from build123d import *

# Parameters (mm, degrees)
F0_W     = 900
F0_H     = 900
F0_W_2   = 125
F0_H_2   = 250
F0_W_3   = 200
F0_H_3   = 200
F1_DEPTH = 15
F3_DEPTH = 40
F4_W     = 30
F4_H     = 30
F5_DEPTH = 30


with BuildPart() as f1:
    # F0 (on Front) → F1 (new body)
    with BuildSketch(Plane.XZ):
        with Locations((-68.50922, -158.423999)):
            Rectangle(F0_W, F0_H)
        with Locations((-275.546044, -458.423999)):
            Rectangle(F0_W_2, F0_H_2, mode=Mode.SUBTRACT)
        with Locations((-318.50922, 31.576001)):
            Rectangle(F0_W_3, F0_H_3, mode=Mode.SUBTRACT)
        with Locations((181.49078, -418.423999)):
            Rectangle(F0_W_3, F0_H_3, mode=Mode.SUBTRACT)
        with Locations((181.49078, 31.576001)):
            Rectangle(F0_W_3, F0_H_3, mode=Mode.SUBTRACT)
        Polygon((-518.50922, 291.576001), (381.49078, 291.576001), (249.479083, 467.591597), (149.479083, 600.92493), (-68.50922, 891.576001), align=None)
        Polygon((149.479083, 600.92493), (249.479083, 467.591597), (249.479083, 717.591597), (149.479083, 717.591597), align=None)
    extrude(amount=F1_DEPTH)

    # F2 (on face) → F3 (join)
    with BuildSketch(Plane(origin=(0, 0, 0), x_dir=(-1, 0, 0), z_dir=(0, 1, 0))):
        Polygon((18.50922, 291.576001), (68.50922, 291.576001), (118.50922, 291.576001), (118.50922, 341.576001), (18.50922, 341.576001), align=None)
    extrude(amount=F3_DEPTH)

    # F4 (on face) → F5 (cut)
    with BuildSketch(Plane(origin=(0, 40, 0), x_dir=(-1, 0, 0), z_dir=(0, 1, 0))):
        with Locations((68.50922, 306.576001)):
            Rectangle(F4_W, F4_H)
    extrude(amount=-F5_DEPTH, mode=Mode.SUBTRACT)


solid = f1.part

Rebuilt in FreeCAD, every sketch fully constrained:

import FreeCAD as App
import Part
import Sketcher
Q = App.Units.Quantity

doc = App.newDocument("Part")
body = doc.addObject("PartDesign::Body", "Body")

# Sketch on XZ plane
sketch1 = doc.addObject("Sketcher::SketchObject", "Sketch")
body.addObject(sketch1)
sketch1.AttachmentSupport = (doc.XZ_Plane, [""])
sketch1.MapMode = "FlatFace"
sketch1.addGeometry(Part.LineSegment(App.Vector(-518.50922, 291.576001, 0), App.Vector(-518.50922, -608.423999, 0)), False)
sketch1.addGeometry(Part.LineSegment(App.Vector(-518.50922, -608.423999, 0), App.Vector(381.49078, -608.423999, 0)), False)
sketch1.addGeometry(Part.LineSegment(App.Vector(381.49078, -608.423999, 0), App.Vector(381.49078, 291.576001, 0)), False)
sketch1.addGeometry(Part.LineSegment(App.Vector(381.49078, 291.576001, 0), App.Vector(249.479083, 467.591597, 0)), False)
sketch1.addGeometry(Part.LineSegment(App.Vector(249.479083, 467.591597, 0), App.Vector(249.479083, 717.591597, 0)), False)
sketch1.addGeometry(Part.LineSegment(App.Vector(249.479083, 717.591597, 0), App.Vector(149.479083, 717.591597, 0)), False)
sketch1.addGeometry(Part.LineSegment(App.Vector(149.479083, 717.591597, 0), App.Vector(149.479083, 600.92493, 0)), False)
sketch1.addGeometry(Part.LineSegment(App.Vector(149.479083, 600.92493, 0), App.Vector(-68.50922, 891.576001, 0)), False)
sketch1.addGeometry(Part.LineSegment(App.Vector(-68.50922, 891.576001, 0), App.Vector(-518.50922, 291.576001, 0)), False)
sketch1.addGeometry(Part.LineSegment(App.Vector(-213.046044, -583.423999, 0), App.Vector(-338.046044, -583.423999, 0)), False)
sketch1.addGeometry(Part.LineSegment(App.Vector(-338.046044, -583.423999, 0), App.Vector(-338.046044, -333.423999, 0)), False)
sketch1.addGeometry(Part.LineSegment(App.Vector(-338.046044, -333.423999, 0), App.Vector(-213.046044, -333.423999, 0)), False)
sketch1.addGeometry(Part.LineSegment(App.Vector(-213.046044, -333.423999, 0), App.Vector(-213.046044, -583.423999, 0)), False)
sketch1.addGeometry(Part.LineSegment(App.Vector(281.49078, -518.423999, 0), App.Vector(81.49078, -518.423999, 0)), False)
sketch1.addGeometry(Part.LineSegment(App.Vector(81.49078, -518.423999, 0), App.Vector(81.49078, -318.423999, 0)), False)
sketch1.addGeometry(Part.LineSegment(App.Vector(81.49078, -318.423999, 0), App.Vector(281.49078, -318.423999, 0)), False)
sketch1.addGeometry(Part.LineSegment(App.Vector(281.49078, -318.423999, 0), App.Vector(281.49078, -518.423999, 0)), False)
sketch1.addGeometry(Part.LineSegment(App.Vector(-218.50922, -68.423999, 0), App.Vector(-418.50922, -68.423999, 0)), False)
sketch1.addGeometry(Part.LineSegment(App.Vector(-418.50922, -68.423999, 0), App.Vector(-418.50922, 131.576001, 0)), False)
sketch1.addGeometry(Part.LineSegment(App.Vector(-418.50922, 131.576001, 0), App.Vector(-218.50922, 131.576001, 0)), False)
sketch1.addGeometry(Part.LineSegment(App.Vector(-218.50922, 131.576001, 0), App.Vector(-218.50922, -68.423999, 0)), False)
sketch1.addGeometry(Part.LineSegment(App.Vector(281.49078, -68.423999, 0), App.Vector(81.49078, -68.423999, 0)), False)
sketch1.addGeometry(Part.LineSegment(App.Vector(81.49078, -68.423999, 0), App.Vector(81.49078, 131.576001, 0)), False)
sketch1.addGeometry(Part.LineSegment(App.Vector(81.49078, 131.576001, 0), App.Vector(281.49078, 131.576001, 0)), False)
sketch1.addGeometry(Part.LineSegment(App.Vector(281.49078, 131.576001, 0), App.Vector(281.49078, -68.423999, 0)), False)
sketch1.addConstraint(Sketcher.Constraint("Coincident", 0, 2, 1, 1))
sketch1.addConstraint(Sketcher.Constraint("Coincident", 1, 2, 2, 1))
sketch1.addConstraint(Sketcher.Constraint("Coincident", 2, 2, 3, 1))
sketch1.addConstraint(Sketcher.Constraint("Coincident", 3, 2, 4, 1))
sketch1.addConstraint(Sketcher.Constraint("Coincident", 4, 2, 5, 1))
sketch1.addConstraint(Sketcher.Constraint("Coincident", 5, 2, 6, 1))
sketch1.addConstraint(Sketcher.Constraint("Coincident", 6, 2, 7, 1))
sketch1.addConstraint(Sketcher.Constraint("Coincident", 7, 2, 8, 1))
sketch1.addConstraint(Sketcher.Constraint("Coincident", 8, 2, 0, 1))
sketch1.addConstraint(Sketcher.Constraint("Coincident", 9, 2, 10, 1))
sketch1.addConstraint(Sketcher.Constraint("Coincident", 10, 2, 11, 1))
sketch1.addConstraint(Sketcher.Constraint("Coincident", 11, 2, 12, 1))
sketch1.addConstraint(Sketcher.Constraint("Coincident", 12, 2, 9, 1))
sketch1.addConstraint(Sketcher.Constraint("Coincident", 13, 2, 14, 1))
sketch1.addConstraint(Sketcher.Constraint("Coincident", 14, 2, 15, 1))
sketch1.addConstraint(Sketcher.Constraint("Coincident", 15, 2, 16, 1))
sketch1.addConstraint(Sketcher.Constraint("Coincident", 16, 2, 13, 1))
sketch1.addConstraint(Sketcher.Constraint("Coincident", 17, 2, 18, 1))
sketch1.addConstraint(Sketcher.Constraint("Coincident", 18, 2, 19, 1))
sketch1.addConstraint(Sketcher.Constraint("Coincident", 19, 2, 20, 1))
sketch1.addConstraint(Sketcher.Constraint("Coincident", 20, 2, 17, 1))
sketch1.addConstraint(Sketcher.Constraint("Coincident", 21, 2, 22, 1))
sketch1.addConstraint(Sketcher.Constraint("Coincident", 22, 2, 23, 1))
sketch1.addConstraint(Sketcher.Constraint("Coincident", 23, 2, 24, 1))
sketch1.addConstraint(Sketcher.Constraint("Coincident", 24, 2, 21, 1))
sketch1.addConstraint(Sketcher.Constraint("Vertical", 0))
sketch1.addConstraint(Sketcher.Constraint("Horizontal", 1))
sketch1.addConstraint(Sketcher.Constraint("Vertical", 2))
sketch1.addConstraint(Sketcher.Constraint("Vertical", 4))
sketch1.addConstraint(Sketcher.Constraint("Horizontal", 5))
sketch1.addConstraint(Sketcher.Constraint("Vertical", 6))
sketch1.addConstraint(Sketcher.Constraint("Horizontal", 9))
sketch1.addConstraint(Sketcher.Constraint("Vertical", 10))
sketch1.addConstraint(Sketcher.Constraint("Horizontal", 11))
sketch1.addConstraint(Sketcher.Constraint("Vertical", 12))
sketch1.addConstraint(Sketcher.Constraint("Horizontal", 13))
sketch1.addConstraint(Sketcher.Constraint("Vertical", 14))
sketch1.addConstraint(Sketcher.Constraint("Horizontal", 15))
sketch1.addConstraint(Sketcher.Constraint("Vertical", 16))
sketch1.addConstraint(Sketcher.Constraint("Horizontal", 17))
sketch1.addConstraint(Sketcher.Constraint("Vertical", 18))
sketch1.addConstraint(Sketcher.Constraint("Horizontal", 19))
sketch1.addConstraint(Sketcher.Constraint("Vertical", 20))
sketch1.addConstraint(Sketcher.Constraint("Horizontal", 21))
sketch1.addConstraint(Sketcher.Constraint("Vertical", 22))
sketch1.addConstraint(Sketcher.Constraint("Horizontal", 23))
sketch1.addConstraint(Sketcher.Constraint("Vertical", 24))
sketch1.addConstraint(Sketcher.Constraint("Parallel", 3, 7))
sketch1.addConstraint(Sketcher.Constraint("Horizontal", 2, 2, 8, 2))
sketch1.addConstraint(Sketcher.Constraint("Horizontal", 20, 2, 21, 2))
sketch1.addConstraint(Sketcher.Constraint("Horizontal", 19, 2, 22, 2))
sketch1.addConstraint(Sketcher.Constraint("Vertical", 14, 2, 21, 2))
sketch1.addConstraint(Sketcher.Constraint("Vertical", 16, 2, 23, 2))
sketch1.addConstraint(Sketcher.Constraint("Equal", 15, 17))
sketch1.addConstraint(Sketcher.Constraint("Equal", 1, 0))
sketch1.addConstraint(Sketcher.Constraint("Equal", 4, 10))
sketch1.addConstraint(Sketcher.Constraint("Equal", 23, 14))
sketch1.addConstraint(Sketcher.Constraint("Equal", 16, 18))
sketch1.addConstraint(Sketcher.Constraint("DistanceX", 1, 1, 1, 2, Q("900 mm")))
sketch1.addConstraint(Sketcher.Constraint("DistanceX", 5, 2, 5, 1, Q("100 mm")))
sketch1.addConstraint(Sketcher.Constraint("DistanceX", 9, 2, 9, 1, Q("125 mm")))
sketch1.addConstraint(Sketcher.Constraint("DistanceX", 13, 2, 13, 1, Q("200 mm")))
sketch1.addConstraint(Sketcher.Constraint("DistanceY", 4, 1, 4, 2, Q("250 mm")))
sketch1.addConstraint(Sketcher.Constraint("Distance", 8, Q("750 mm")))
sketch1.addConstraint(Sketcher.Constraint("DistanceX", 7, 2, 2, 2, Q("450 mm")))
sketch1.addConstraint(Sketcher.Constraint("DistanceY", 0, 2, 9, 2, Q("25 mm")))
sketch1.addConstraint(Sketcher.Constraint("DistanceY", 12, 2, 13, 2, Q("65 mm")))
sketch1.addConstraint(Sketcher.Constraint("DistanceX", 13, 2, 1, 2, Q("300 mm")))
sketch1.addConstraint(Sketcher.Constraint("DistanceY", 10, 2, 17, 2, Q("265 mm")))
sketch1.addConstraint(Sketcher.Constraint("DistanceX", 8, 2, 17, 2, Q("100 mm")))
sketch1.addConstraint(Sketcher.Constraint("DistanceY", 0, 2, -1, 1, Q("608.423999 mm")))
sketch1.addConstraint(Sketcher.Constraint("Distance", 7, Q("363.313839 mm")))
sketch1.addConstraint(Sketcher.Constraint("DistanceY", 6, 2, 6, 1, Q("116.666667 mm")))
sketch1.addConstraint(Sketcher.Constraint("DistanceX", 0, 2, -1, 1, Q("518.50922 mm")))
sketch1.addConstraint(Sketcher.Constraint("DistanceX", 9, 2, -1, 1, Q("338.046044 mm")))
pad1 = doc.addObject("PartDesign::Pad", "Pad")
body.addObject(pad1)
pad1.Profile = sketch1
pad1.Length = 15

# Sketch on XZ plane
sketch2 = doc.addObject("Sketcher::SketchObject", "Sketch001")
body.addObject(sketch2)
sketch2.AttachmentSupport = (doc.XZ_Plane, [""])
sketch2.MapMode = "FlatFace"
sketch2.addGeometry(Part.LineSegment(App.Vector(-18.50922, 291.576001, 0), App.Vector(-118.50922, 291.576001, 0)), False)
sketch2.addGeometry(Part.LineSegment(App.Vector(-118.50922, 291.576001, 0), App.Vector(-118.50922, 341.576001, 0)), False)
sketch2.addGeometry(Part.LineSegment(App.Vector(-118.50922, 341.576001, 0), App.Vector(-18.50922, 341.576001, 0)), False)
sketch2.addGeometry(Part.LineSegment(App.Vector(-18.50922, 341.576001, 0), App.Vector(-18.50922, 291.576001, 0)), False)
sketch2.addConstraint(Sketcher.Constraint("Coincident", 0, 2, 1, 1))
sketch2.addConstraint(Sketcher.Constraint("Coincident", 1, 2, 2, 1))
sketch2.addConstraint(Sketcher.Constraint("Coincident", 2, 2, 3, 1))
sketch2.addConstraint(Sketcher.Constraint("Coincident", 3, 2, 0, 1))
sketch2.addConstraint(Sketcher.Constraint("Horizontal", 0))
sketch2.addConstraint(Sketcher.Constraint("Vertical", 1))
sketch2.addConstraint(Sketcher.Constraint("Horizontal", 2))
sketch2.addConstraint(Sketcher.Constraint("Vertical", 3))
sketch2.addConstraint(Sketcher.Constraint("DistanceX", 0, 2, 0, 1, Q("100 mm")))
sketch2.addConstraint(Sketcher.Constraint("DistanceY", 1, 1, 1, 2, Q("50 mm")))
sketch2.addConstraint(Sketcher.Constraint("DistanceY", -1, 1, 0, 2, Q("291.576001 mm")))
sketch2.addConstraint(Sketcher.Constraint("DistanceX", 0, 2, -1, 1, Q("118.50922 mm")))
pad2 = doc.addObject("PartDesign::Pad", "Pad001")
body.addObject(pad2)
pad2.Profile = sketch2
pad2.Length = 40
pad2.Reversed = True

# Sketch on XZ plane
sketch3 = doc.addObject("Sketcher::SketchObject", "Sketch002")
body.addObject(sketch3)
sketch3.AttachmentSupport = (doc.XZ_Plane, [""])
sketch3.MapMode = "FlatFace"
sketch3.AttachmentOffset = App.Placement(App.Vector(0, 0, -40), App.Rotation())
sketch3.addGeometry(Part.LineSegment(App.Vector(-53.50922, 321.576001, 0), App.Vector(-53.50922, 291.576001, 0)), False)
sketch3.addGeometry(Part.LineSegment(App.Vector(-53.50922, 291.576001, 0), App.Vector(-83.50922, 291.576001, 0)), False)
sketch3.addGeometry(Part.LineSegment(App.Vector(-83.50922, 291.576001, 0), App.Vector(-83.50922, 321.576001, 0)), False)
sketch3.addGeometry(Part.LineSegment(App.Vector(-83.50922, 321.576001, 0), App.Vector(-53.50922, 321.576001, 0)), False)
sketch3.addConstraint(Sketcher.Constraint("Coincident", 0, 2, 1, 1))
sketch3.addConstraint(Sketcher.Constraint("Coincident", 1, 2, 2, 1))
sketch3.addConstraint(Sketcher.Constraint("Coincident", 2, 2, 3, 1))
sketch3.addConstraint(Sketcher.Constraint("Coincident", 3, 2, 0, 1))
sketch3.addConstraint(Sketcher.Constraint("Vertical", 0))
sketch3.addConstraint(Sketcher.Constraint("Horizontal", 1))
sketch3.addConstraint(Sketcher.Constraint("Vertical", 2))
sketch3.addConstraint(Sketcher.Constraint("Horizontal", 3))
sketch3.addConstraint(Sketcher.Constraint("Equal", 3, 0))
sketch3.addConstraint(Sketcher.Constraint("DistanceX", 1, 2, 1, 1, Q("30 mm")))
sketch3.addConstraint(Sketcher.Constraint("DistanceY", -1, 1, 0, 2, Q("291.576001 mm")))
sketch3.addConstraint(Sketcher.Constraint("DistanceX", 0, 2, -1, 1, Q("53.50922 mm")))
pocket1 = doc.addObject("PartDesign::Pocket", "Pocket")
body.addObject(pocket1)
pocket1.Profile = sketch3
pocket1.Length = 30
pocket1.Reversed = True

doc.recompute()
